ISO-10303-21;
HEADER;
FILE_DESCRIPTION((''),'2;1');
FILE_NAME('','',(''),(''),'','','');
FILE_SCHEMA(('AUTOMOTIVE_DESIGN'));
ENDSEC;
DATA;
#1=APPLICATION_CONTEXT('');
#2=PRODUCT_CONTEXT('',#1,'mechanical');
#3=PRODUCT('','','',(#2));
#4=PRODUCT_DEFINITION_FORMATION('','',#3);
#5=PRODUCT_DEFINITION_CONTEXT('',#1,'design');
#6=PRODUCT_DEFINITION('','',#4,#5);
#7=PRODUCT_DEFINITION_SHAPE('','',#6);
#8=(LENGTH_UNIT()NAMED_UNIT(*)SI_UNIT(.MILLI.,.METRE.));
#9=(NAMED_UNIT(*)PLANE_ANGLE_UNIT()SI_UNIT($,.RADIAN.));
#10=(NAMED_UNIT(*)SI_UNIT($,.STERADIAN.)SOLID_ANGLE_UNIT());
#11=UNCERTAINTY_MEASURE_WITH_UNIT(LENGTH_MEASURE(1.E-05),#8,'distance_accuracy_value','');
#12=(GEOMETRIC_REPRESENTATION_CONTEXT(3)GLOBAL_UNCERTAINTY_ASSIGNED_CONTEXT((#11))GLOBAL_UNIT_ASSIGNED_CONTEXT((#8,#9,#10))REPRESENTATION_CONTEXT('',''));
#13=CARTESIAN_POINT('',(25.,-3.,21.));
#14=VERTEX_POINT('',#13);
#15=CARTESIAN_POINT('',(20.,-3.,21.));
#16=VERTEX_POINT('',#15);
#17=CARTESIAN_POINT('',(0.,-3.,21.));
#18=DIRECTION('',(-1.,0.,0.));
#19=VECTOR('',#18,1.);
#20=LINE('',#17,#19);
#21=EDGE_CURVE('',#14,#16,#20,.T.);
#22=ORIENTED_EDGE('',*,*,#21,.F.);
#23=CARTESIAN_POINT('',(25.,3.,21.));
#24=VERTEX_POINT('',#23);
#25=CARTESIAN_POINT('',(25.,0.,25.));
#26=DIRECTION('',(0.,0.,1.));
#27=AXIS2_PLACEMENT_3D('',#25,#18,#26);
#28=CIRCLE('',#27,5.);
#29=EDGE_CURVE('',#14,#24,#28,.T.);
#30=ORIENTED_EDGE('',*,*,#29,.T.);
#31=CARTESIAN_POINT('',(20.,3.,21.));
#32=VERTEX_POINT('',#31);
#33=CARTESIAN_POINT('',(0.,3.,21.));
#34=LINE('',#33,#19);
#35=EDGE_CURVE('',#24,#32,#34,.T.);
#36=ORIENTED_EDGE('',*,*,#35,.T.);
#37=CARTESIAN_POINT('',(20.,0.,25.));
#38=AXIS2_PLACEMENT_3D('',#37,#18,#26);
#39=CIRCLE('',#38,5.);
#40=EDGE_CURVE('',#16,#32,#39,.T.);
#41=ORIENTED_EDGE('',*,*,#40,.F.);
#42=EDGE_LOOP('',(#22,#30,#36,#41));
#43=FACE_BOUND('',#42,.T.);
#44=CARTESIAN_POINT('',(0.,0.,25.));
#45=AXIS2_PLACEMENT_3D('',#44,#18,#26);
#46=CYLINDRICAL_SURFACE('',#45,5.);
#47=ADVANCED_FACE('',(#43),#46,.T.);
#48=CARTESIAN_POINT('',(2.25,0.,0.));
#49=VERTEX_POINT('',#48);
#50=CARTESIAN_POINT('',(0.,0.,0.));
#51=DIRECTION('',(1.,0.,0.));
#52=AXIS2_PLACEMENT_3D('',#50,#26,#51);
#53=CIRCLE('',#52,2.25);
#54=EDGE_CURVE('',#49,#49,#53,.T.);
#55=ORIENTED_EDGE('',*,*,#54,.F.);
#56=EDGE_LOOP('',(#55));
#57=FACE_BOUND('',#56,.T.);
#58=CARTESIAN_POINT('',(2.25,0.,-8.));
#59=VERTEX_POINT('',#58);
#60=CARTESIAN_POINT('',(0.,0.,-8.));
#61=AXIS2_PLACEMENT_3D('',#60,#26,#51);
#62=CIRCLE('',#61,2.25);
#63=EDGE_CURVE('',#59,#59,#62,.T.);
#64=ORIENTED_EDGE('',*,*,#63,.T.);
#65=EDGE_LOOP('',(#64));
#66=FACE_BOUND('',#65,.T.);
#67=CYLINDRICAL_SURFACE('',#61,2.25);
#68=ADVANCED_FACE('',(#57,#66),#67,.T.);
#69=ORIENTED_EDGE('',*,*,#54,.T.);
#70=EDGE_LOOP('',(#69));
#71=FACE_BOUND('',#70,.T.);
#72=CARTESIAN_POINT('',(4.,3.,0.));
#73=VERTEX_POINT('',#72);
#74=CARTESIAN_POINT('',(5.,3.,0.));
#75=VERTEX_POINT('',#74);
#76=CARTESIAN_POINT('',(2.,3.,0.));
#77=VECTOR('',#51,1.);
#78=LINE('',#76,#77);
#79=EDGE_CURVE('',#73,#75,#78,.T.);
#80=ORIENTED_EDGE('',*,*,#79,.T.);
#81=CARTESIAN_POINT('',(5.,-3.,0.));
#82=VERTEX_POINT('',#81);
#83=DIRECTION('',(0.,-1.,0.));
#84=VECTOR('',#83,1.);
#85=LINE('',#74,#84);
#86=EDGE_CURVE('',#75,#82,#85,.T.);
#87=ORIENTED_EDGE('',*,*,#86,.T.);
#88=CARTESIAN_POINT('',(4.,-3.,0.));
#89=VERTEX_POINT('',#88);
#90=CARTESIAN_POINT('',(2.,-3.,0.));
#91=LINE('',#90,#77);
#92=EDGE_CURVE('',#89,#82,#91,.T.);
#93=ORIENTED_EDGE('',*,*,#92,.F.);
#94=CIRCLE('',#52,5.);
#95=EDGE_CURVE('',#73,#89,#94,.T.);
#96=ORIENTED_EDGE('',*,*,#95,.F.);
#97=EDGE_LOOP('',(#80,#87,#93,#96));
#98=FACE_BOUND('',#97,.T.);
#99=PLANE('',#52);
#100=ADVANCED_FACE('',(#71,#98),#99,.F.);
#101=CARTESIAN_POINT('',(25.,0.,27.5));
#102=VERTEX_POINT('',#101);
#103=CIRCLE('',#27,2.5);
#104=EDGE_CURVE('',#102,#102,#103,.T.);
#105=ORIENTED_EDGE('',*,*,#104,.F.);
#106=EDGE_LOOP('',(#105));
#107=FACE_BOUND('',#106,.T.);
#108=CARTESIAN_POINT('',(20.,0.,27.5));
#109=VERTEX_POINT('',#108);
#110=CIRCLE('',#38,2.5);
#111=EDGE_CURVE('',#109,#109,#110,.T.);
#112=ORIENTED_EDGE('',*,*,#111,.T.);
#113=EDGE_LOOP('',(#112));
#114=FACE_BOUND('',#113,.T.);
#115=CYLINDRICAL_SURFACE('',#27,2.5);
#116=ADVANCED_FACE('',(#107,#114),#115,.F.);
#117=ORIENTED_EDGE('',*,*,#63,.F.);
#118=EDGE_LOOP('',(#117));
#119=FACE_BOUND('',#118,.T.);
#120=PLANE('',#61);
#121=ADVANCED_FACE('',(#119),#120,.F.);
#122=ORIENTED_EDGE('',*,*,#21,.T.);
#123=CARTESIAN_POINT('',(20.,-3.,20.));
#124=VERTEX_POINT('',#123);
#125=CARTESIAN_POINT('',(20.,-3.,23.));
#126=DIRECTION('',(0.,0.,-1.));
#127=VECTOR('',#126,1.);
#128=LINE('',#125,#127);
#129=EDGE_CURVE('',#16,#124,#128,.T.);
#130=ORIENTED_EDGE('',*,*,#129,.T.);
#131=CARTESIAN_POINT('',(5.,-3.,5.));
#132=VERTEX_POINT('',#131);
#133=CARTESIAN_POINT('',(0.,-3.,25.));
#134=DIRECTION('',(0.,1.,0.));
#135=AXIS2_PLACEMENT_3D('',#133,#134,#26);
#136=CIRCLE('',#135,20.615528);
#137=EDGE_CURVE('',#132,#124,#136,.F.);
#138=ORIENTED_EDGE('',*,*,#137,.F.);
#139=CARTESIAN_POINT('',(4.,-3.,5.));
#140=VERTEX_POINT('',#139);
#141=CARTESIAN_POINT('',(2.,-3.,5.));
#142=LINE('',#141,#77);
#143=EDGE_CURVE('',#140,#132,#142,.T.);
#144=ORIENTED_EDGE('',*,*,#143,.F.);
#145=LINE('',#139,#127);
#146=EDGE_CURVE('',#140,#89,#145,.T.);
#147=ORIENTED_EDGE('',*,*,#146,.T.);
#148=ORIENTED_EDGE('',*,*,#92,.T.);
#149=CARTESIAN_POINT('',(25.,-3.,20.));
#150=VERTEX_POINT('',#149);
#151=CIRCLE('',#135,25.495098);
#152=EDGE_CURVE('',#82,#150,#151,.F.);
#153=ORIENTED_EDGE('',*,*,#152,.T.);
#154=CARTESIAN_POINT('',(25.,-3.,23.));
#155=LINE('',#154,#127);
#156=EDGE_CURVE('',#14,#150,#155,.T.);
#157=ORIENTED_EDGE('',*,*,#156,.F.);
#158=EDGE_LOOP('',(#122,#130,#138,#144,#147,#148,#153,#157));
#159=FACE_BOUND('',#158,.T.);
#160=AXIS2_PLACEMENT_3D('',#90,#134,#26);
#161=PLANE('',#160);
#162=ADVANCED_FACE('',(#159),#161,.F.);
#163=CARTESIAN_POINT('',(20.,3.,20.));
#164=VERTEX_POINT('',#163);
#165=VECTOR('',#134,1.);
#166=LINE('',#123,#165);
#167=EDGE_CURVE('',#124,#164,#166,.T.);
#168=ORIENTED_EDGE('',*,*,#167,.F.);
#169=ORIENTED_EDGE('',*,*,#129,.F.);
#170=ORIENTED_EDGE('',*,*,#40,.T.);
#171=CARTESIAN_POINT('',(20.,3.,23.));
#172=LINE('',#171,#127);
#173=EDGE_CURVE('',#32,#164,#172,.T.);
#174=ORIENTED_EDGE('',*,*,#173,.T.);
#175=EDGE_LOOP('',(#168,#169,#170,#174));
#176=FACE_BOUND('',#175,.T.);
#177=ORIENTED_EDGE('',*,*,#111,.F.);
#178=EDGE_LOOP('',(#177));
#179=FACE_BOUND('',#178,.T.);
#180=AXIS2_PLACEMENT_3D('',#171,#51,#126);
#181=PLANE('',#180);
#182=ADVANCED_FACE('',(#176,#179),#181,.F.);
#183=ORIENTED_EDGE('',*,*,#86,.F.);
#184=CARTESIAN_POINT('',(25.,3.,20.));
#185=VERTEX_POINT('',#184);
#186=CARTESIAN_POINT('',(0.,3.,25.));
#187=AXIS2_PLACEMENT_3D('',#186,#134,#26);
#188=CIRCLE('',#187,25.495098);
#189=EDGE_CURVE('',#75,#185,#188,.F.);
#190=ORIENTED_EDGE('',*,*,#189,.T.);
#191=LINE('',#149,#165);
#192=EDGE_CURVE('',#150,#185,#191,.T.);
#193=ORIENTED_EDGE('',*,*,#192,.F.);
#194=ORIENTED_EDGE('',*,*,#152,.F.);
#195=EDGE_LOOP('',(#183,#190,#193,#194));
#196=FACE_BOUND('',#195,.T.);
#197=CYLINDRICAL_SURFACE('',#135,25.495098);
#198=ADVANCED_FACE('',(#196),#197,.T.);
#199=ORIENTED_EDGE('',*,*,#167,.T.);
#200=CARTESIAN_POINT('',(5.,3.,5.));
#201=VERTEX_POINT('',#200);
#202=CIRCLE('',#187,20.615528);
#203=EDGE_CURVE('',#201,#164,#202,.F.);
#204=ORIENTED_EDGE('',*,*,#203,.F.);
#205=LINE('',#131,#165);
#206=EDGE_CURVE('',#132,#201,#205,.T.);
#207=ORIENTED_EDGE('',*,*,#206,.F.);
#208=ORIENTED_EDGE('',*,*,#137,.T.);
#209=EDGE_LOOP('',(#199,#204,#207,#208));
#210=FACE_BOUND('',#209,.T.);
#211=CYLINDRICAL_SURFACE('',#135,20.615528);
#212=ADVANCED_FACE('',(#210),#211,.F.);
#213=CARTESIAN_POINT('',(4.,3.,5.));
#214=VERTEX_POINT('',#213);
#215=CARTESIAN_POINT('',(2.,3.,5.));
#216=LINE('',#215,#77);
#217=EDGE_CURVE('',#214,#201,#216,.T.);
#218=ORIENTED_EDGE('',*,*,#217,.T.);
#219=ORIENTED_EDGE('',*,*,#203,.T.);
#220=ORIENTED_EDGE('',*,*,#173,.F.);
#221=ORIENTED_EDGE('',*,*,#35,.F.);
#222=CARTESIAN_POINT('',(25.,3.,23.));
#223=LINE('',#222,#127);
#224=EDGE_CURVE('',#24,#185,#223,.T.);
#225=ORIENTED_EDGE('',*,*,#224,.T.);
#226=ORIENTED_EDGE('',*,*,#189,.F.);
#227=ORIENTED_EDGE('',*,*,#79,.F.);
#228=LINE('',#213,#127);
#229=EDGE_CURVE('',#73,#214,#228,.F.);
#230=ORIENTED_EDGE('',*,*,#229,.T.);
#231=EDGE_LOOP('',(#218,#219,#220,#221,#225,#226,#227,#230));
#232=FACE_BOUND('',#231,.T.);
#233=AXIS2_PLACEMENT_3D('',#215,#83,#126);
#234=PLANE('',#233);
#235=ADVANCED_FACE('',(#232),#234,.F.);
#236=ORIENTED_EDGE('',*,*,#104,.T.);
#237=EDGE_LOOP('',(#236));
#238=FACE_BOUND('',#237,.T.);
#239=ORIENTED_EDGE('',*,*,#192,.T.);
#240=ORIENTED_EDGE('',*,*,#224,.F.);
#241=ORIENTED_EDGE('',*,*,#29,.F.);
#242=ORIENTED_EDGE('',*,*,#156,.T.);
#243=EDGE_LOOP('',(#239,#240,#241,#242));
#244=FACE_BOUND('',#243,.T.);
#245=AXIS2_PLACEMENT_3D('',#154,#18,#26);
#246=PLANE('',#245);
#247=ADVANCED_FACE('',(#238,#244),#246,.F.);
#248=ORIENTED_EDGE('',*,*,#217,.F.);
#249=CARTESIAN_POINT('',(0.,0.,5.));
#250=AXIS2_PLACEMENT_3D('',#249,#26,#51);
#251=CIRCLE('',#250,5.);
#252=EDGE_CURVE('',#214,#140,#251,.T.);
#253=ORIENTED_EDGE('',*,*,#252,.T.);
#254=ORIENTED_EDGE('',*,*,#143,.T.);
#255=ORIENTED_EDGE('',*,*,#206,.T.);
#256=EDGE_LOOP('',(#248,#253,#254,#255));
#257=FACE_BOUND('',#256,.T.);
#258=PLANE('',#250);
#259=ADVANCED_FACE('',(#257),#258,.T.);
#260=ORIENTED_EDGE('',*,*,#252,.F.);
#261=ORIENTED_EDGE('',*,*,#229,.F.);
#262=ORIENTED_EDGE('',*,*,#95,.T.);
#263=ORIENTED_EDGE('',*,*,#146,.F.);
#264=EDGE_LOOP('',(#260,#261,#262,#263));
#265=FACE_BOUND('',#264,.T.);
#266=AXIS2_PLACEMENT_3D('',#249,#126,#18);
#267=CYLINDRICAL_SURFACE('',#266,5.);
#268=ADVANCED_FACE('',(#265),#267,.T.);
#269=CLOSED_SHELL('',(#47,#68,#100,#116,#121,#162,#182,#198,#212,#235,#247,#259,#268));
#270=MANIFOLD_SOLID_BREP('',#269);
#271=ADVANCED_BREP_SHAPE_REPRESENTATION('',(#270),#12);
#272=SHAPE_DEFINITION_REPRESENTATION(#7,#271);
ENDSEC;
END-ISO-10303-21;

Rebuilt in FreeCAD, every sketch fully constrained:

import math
import FreeCAD as App
import Part
import Sketcher


def add_polygon(sketch, points):
    """Adds a closed chain of lines whose ends are joined by coincident constraints."""
    first, n = sketch.GeometryCount, len(points)
    for a, b in zip(points, points[1:] + points[:1]):
        sketch.addGeometry(Part.LineSegment(App.Vector(*a, 0), App.Vector(*b, 0)), False)
    for i in range(n):
        sketch.addConstraint(Sketcher.Constraint("Coincident", first + i, 2, first + (i + 1) % n, 1))

doc = App.newDocument("Part")
body = doc.addObject("PartDesign::Body", "Body")

# Sketch on XY plane
sketch1 = body.newObject("Sketcher::SketchObject", "Sketch")
sketch1.AttachmentSupport = (doc.getObject("XY_Plane"), [""])
sketch1.MapMode = "FlatFace"
sketch1.addGeometry(Part.Circle(App.Vector(0, 0, 0), App.Vector(0, 0, 1), 5), False)
sketch1.addConstraint([
    Sketcher.Constraint("Coincident", 0, 3, -1, 1),
    Sketcher.Constraint("Diameter", 0, 10.0),
])
pad1 = body.newObject("PartDesign::Pad", "Pad")
pad1.Profile = sketch1
pad1.Length = 5
body2 = doc.addObject("PartDesign::Body", "Body001")

# Sketch on XZ plane
sketch2 = body2.newObject("Sketcher::SketchObject", "Sketch001")
sketch2.AttachmentSupport = (doc.getObject("XZ_Plane001"), [""])
sketch2.MapMode = "FlatFace"
sketch2.addGeometry([
    Part.ArcOfCircle(Part.Circle(App.Vector(0, 25, 0), App.Vector(0, 0, 1), 25.495098), math.radians(-78.690068), math.radians(-11.309932)),
    Part.LineSegment(App.Vector(5, 0, 0), App.Vector(5, 5, 0)),
    Part.ArcOfCircle(Part.Circle(App.Vector(0, 25, 0), App.Vector(0, 0, 1), 20.615528), math.radians(-75.963757), math.radians(-14.036243)),
    Part.LineSegment(App.Vector(20, 20, 0), App.Vector(25, 20, 0)),
], False)
sketch2.addConstraint([
    Sketcher.Constraint("Coincident", 0, 1, 1, 1),
    Sketcher.Constraint("Coincident", 1, 2, 2, 1),
    Sketcher.Constraint("Coincident", 2, 2, 3, 1),
    Sketcher.Constraint("Coincident", 3, 2, 0, 2),
    Sketcher.Constraint("Vertical", 1),
    Sketcher.Constraint("Horizontal", 3),
    Sketcher.Constraint("Coincident", 2, 3, 0, 3),
    Sketcher.Constraint("PointOnObject", 0, 3, -2),
    Sketcher.Constraint("PointOnObject", 0, 1, -1),
    Sketcher.Constraint("Equal", 3, 1),
    Sketcher.Constraint("DistanceX", 3, 1, 3, 2, 5.0),
    Sketcher.Constraint("DistanceY", -1, 1, 0, 3, 25.0),
    Sketcher.Constraint("DistanceX", -1, 1, 0, 1, 5.0),
])
pad2 = body2.newObject("PartDesign::Pad", "Pad001")
pad2.Profile = sketch2
pad2.Type = "TwoLengths"
pad2.Length = 3
pad2.Length2 = 3
pad2.Reversed = True
body3 = doc.addObject("PartDesign::Body", "Body002")

# Sketch on XZ plane
sketch3 = body3.newObject("Sketcher::SketchObject", "Sketch002")
sketch3.AttachmentSupport = (doc.getObject("XZ_Plane002"), [""])
sketch3.MapMode = "FlatFace"
add_polygon(sketch3, [(20, 20), (20, 25), (25, 25), (25, 20)])  # lines 0-3
sketch3.addGeometry(Part.LineSegment(App.Vector(20, 25, 0), App.Vector(25, 25, 0)), True)  # axis
sketch3.addConstraint([
    Sketcher.Constraint("Vertical", 0),
    Sketcher.Constraint("Horizontal", 1),
    Sketcher.Constraint("Vertical", 2),
    Sketcher.Constraint("Horizontal", 3),
    Sketcher.Constraint("Horizontal", 4),
    Sketcher.Constraint("Coincident", 4, 1, 0, 2),
    Sketcher.Constraint("Vertical", 2, 2, 4, 2),
    Sketcher.Constraint("Equal", 4, 0),
    Sketcher.Constraint("DistanceX", 1, 1, 1, 2, 5.0),
    Sketcher.Constraint("DistanceX", -1, 1, 0, 2, 20.0),
    Sketcher.Constraint("DistanceY", -1, 1, 0, 2, 25.0),
])
revolution = body3.newObject("PartDesign::Revolution", "Revolution")
revolution.Profile = sketch3
revolution.ReferenceAxis = (sketch3, ["Axis0"])
revolution.Angle = 360
body2.AllowCompound = True
doc.recompute()

boolean = body2.newObject("PartDesign::Boolean", "Boolean")
boolean.Type = "Fuse"
boolean.addObjects([body3])

# Sketch on XY plane
sketch4 = body2.newObject("Sketcher::SketchObject", "Sketch003")
sketch4.AttachmentSupport = (doc.getObject("XY_Plane001"), [""])
sketch4.MapMode = "FlatFace"
sketch4.AttachmentOffset = App.Placement(App.Vector(0, 0, 20), App.Rotation())
add_polygon(sketch4, [(20, 3), (20, -3), (25, -3), (25, 3)])  # lines 0-3
sketch4.addConstraint([
    Sketcher.Constraint("Vertical", 0),
    Sketcher.Constraint("Horizontal", 1),
    Sketcher.Constraint("Vertical", 2),
    Sketcher.Constraint("Horizontal", 3),
    Sketcher.Constraint("DistanceX", 1, 1, 1, 2, 5.0),
    Sketcher.Constraint("DistanceY", 0, 2, 0, 1, 6.0),
    Sketcher.Constraint("DistanceX", -1, 1, 0, 2, 20.0),
    Sketcher.Constraint("DistanceY", 0, 2, -1, 1, 3.0),
])
pad3 = body2.newObject("PartDesign::Pad", "Pad002")
pad3.Profile = sketch4
pad3.Length = 3
body.AllowCompound = True
doc.recompute()

boolean2 = body.newObject("PartDesign::Boolean", "Boolean001")
boolean2.Type = "Fuse"
boolean2.addObjects([body2])

# Sketch on YZ plane
sketch5 = body.newObject("Sketcher::SketchObject", "Sketch004")
sketch5.AttachmentSupport = (doc.getObject("YZ_Plane"), [""])
sketch5.MapMode = "FlatFace"
sketch5.AttachmentOffset = App.Placement(App.Vector(0, 0, 5), App.Rotation())
add_polygon(sketch5, [(3, 0), (-3, 0), (-3, 5), (3, 5)])  # lines 0-3
sketch5.addConstraint([
    Sketcher.Constraint("Horizontal", 0),
    Sketcher.Constraint("Vertical", 1),
    Sketcher.Constraint("Horizontal", 2),
    Sketcher.Constraint("Vertical", 3),
    Sketcher.Constraint("Symmetric", 0, 2, 3, 2, -1, 1),
    Sketcher.Constraint("DistanceX", 0, 2, 0, 1, 6.0),
    Sketcher.Constraint("DistanceY", 1, 1, 1, 2, 5.0),
])
pad4 = body.newObject("PartDesign::Pad", "Pad003")
pad4.Profile = sketch5
pad4.Length = 3
pad4.Reversed = True

# Sketch on YZ plane
sketch6 = body.newObject("Sketcher::SketchObject", "Sketch005")
sketch6.AttachmentSupport = (doc.getObject("YZ_Plane"), [""])
sketch6.MapMode = "FlatFace"
sketch6.AttachmentOffset = App.Placement(App.Vector(0, 0, 20), App.Rotation())
sketch6.addGeometry(Part.Circle(App.Vector(0, 25, 0), App.Vector(0, 0, 1), 2.5), False)
sketch6.addConstraint([
    Sketcher.Constraint("PointOnObject", 0, 3, -2),
    Sketcher.Constraint("Diameter", 0, 5.0),
    Sketcher.Constraint("DistanceY", -1, 1, 0, 3, 25.0),
])
pocket1 = body.newObject("PartDesign::Pocket", "Pocket")
pocket1.Profile = sketch6
pocket1.Length = 5
pocket1.Reversed = True

# Sketch on XY plane
sketch7 = body.newObject("Sketcher::SketchObject", "Sketch006")
sketch7.AttachmentSupport = (doc.getObject("XY_Plane"), [""])
sketch7.MapMode = "FlatFace"
sketch7.addGeometry(Part.Circle(App.Vector(0, 0, 0), App.Vector(0, 0, 1), 2.25), False)
sketch7.addConstraint([
    Sketcher.Constraint("Coincident", 0, 3, -1, 1),
    Sketcher.Constraint("Diameter", 0, 4.5),
])
pad5 = body.newObject("PartDesign::Pad", "Pad004")
pad5.Profile = sketch7
pad5.Length = 8
pad5.Reversed = True

doc.recompute()
